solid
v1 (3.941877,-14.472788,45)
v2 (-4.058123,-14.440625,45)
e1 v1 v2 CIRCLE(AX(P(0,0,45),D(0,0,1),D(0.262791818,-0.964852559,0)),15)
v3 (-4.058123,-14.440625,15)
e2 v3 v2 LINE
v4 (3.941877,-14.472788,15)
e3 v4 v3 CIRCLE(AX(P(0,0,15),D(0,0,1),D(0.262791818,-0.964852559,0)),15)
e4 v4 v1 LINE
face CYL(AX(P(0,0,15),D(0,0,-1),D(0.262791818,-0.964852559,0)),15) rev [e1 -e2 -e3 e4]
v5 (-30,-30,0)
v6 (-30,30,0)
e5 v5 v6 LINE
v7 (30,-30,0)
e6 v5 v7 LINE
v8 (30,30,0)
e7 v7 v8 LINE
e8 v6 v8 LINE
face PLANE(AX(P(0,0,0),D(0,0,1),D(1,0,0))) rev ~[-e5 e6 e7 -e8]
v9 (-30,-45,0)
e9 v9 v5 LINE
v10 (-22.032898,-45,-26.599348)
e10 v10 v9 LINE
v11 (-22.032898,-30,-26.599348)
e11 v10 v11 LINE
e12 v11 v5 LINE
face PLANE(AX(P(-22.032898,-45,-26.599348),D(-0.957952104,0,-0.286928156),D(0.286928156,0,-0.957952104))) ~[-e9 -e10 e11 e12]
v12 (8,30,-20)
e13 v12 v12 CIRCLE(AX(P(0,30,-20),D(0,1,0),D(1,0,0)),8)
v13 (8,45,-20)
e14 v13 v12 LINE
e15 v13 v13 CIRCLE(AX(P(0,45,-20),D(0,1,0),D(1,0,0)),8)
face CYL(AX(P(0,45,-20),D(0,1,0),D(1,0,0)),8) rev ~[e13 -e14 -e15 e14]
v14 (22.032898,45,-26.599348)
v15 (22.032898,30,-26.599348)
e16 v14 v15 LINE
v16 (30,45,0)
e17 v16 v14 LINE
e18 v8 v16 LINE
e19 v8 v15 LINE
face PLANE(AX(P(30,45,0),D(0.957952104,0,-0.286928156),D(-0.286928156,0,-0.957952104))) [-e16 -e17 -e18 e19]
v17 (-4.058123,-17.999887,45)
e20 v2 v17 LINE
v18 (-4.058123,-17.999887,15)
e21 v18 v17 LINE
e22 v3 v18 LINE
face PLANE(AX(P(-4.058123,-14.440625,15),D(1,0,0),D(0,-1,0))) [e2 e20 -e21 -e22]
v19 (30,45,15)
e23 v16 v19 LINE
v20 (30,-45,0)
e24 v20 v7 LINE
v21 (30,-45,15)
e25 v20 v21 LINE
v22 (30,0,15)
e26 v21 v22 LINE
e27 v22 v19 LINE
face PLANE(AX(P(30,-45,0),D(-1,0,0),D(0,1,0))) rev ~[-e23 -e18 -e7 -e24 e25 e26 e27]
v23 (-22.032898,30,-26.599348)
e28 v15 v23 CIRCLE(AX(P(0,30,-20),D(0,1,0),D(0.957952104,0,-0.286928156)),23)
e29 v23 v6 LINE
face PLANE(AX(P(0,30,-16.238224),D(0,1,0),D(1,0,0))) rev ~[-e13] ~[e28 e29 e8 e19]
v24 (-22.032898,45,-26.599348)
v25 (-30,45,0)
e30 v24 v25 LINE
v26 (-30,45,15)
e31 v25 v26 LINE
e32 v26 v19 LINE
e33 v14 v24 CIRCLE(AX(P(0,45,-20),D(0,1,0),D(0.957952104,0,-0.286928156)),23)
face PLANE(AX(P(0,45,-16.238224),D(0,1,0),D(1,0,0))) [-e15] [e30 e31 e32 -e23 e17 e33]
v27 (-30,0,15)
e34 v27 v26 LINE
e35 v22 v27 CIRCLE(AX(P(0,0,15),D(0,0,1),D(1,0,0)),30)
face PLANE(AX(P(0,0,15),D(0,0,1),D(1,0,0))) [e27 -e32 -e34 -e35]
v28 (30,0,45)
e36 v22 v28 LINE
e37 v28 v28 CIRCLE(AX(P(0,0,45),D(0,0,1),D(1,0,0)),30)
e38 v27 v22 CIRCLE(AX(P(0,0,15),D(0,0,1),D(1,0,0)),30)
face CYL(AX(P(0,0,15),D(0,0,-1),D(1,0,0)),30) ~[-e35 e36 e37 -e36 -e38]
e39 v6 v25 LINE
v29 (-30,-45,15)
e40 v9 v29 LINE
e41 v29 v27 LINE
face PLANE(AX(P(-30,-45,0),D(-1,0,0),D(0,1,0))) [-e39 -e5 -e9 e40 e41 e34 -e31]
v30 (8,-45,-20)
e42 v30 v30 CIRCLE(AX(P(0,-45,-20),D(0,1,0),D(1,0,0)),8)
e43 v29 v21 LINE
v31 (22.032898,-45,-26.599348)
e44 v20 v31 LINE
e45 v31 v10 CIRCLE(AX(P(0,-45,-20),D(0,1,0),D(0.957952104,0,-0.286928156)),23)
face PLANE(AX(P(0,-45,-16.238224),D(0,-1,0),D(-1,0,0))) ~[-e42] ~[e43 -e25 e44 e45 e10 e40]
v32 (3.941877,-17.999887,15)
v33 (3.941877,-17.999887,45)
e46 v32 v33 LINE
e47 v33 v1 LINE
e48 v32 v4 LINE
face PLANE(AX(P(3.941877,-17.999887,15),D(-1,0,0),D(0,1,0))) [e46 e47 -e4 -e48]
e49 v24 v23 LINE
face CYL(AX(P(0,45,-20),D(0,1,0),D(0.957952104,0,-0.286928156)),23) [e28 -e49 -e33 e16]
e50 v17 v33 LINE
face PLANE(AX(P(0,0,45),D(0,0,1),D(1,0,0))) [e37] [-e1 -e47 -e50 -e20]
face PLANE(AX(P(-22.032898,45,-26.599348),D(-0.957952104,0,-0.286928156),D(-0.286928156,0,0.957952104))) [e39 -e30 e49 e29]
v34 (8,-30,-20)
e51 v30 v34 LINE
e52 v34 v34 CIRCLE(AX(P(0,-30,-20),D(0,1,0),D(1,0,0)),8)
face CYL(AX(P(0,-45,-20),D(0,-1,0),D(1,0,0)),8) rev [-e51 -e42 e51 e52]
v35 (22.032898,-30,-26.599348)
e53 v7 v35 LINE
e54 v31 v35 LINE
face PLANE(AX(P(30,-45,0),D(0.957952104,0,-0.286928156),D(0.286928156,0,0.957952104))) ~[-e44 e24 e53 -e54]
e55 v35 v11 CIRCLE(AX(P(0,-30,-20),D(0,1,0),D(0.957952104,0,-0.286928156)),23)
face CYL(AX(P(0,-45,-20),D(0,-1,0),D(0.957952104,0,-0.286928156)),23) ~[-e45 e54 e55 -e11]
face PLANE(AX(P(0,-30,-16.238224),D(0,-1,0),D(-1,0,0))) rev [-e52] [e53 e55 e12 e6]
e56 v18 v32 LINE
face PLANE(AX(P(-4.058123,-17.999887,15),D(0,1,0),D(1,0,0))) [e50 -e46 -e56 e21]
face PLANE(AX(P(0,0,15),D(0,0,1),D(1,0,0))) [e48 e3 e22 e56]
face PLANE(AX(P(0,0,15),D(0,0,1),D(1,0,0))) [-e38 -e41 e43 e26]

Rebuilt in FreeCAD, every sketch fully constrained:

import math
import FreeCAD as App
import Part
import Sketcher
from FreeCAD import Vector
Q = App.Units.Quantity


def add_polygon(sketch, points):
    """Adds a closed chain of lines whose ends are joined by coincident constraints."""
    first, n = sketch.GeometryCount, len(points)
    for a, b in zip(points, points[1:] + points[:1]):
        sketch.addGeometry(Part.LineSegment(App.Vector(*a, 0), App.Vector(*b, 0)), False)
    for i in range(n):
        sketch.addConstraint(Sketcher.Constraint("Coincident", first + i, 2, first + (i + 1) % n, 1))

doc = App.newDocument("Part")
body = doc.addObject("PartDesign::Body", "Body")

sketch1 = doc.addObject("Sketcher::SketchObject", "Sketch")
body.addObject(sketch1)
sketch1.AttachmentSupport = (doc.XY_Plane, [""])
sketch1.MapMode = "FlatFace"
add_polygon(sketch1, [(-30, 45), (-30, -45), (30, -45), (30, 45)])
sketch1.addConstraint([
    Sketcher.Constraint("Vertical", 0),
    Sketcher.Constraint("Horizontal", 1),
    Sketcher.Constraint("Vertical", 2),
    Sketcher.Constraint("Horizontal", 3),
    Sketcher.Constraint("Symmetric", 0, 2, 2, 2, -1, 1),
    Sketcher.Constraint("DistanceX", 1, 1, 1, 2, Q("60 mm")),
    Sketcher.Constraint("DistanceY", 0, 2, 0, 1, Q("90 mm")),
])
pad1 = doc.addObject("PartDesign::Pad", "Pad")
body.addObject(pad1)
pad1.Profile = sketch1
pad1.Length = 15

sketch2 = doc.addObject("Sketcher::SketchObject", "Sketch001")
body.addObject(sketch2)
sketch2.AttachmentSupport = (doc.XY_Plane, [""])
sketch2.MapMode = "FlatFace"
sketch2.AttachmentOffset = App.Placement(Vector(0, 0, 15), App.Rotation())
sketch2.addGeometry([
    Part.Circle(Vector(0, 0, 0), Vector(0, 0, 1), 30),
    Part.LineSegment(Vector(-4.058123, -17.999887, 0), Vector(-4.058123, -14.440625, 0)),
    Part.ArcOfCircle(Part.Circle(Vector(0, 0, 0), Vector(0, 0, 1), 15), math.radians(-74.764217), math.radians(254.303507)),
    Part.LineSegment(Vector(3.941877, -14.472788, 0), Vector(3.941877, -17.999887, 0)),
    Part.LineSegment(Vector(3.941877, -17.999887, 0), Vector(-4.058123, -17.999887, 0)),
], False)
sketch2.addConstraint([
    Sketcher.Constraint("Coincident", 1, 2, 2, 2),
    Sketcher.Constraint("Coincident", 2, 1, 3, 1),
    Sketcher.Constraint("Coincident", 3, 2, 4, 1),
    Sketcher.Constraint("Coincident", 4, 2, 1, 1),
    Sketcher.Constraint("Vertical", 1),
    Sketcher.Constraint("Vertical", 3),
    Sketcher.Constraint("Horizontal", 4),
    Sketcher.Constraint("Coincident", 0, 3, -1, 1),
    Sketcher.Constraint("Coincident", 2, 3, -1, 1),
    Sketcher.Constraint("Diameter", 0, Q("60 mm")),
    Sketcher.Constraint("Radius", 2, Q("15 mm")),
    Sketcher.Constraint("DistanceX", 4, 2, 4, 1, Q("8 mm")),
    Sketcher.Constraint("DistanceY", 3, 2, 3, 1, Q("3.527099 mm")),
    Sketcher.Constraint("DistanceY", 1, 1, 1, 2, Q("3.559263 mm")),
])
pad2 = doc.addObject("PartDesign::Pad", "Pad001")
body.addObject(pad2)
pad2.Profile = sketch2
pad2.Length = 30

sketch3 = doc.addObject("Sketcher::SketchObject", "Sketch002")
body.addObject(sketch3)
sketch3.AttachmentSupport = (doc.XZ_Plane, [""])
sketch3.MapMode = "FlatFace"
sketch3.AttachmentOffset = App.Placement(Vector(0, 0, -45), App.Rotation())
sketch3.addGeometry([
    Part.LineSegment(Vector(-30, 0, 0), Vector(30, 0, 0)),
    Part.LineSegment(Vector(30, 0, 0), Vector(22.032898, -26.599348, 0)),
    Part.ArcOfCircle(Part.Circle(Vector(0, -20, 0), Vector(0, 0, 1), 23), math.radians(-163.325862), math.radians(-16.674138)),
    Part.LineSegment(Vector(-22.032898, -26.599348, 0), Vector(-30, 0, 0)),
    Part.Circle(Vector(0, -20, 0), Vector(0, 0, 1), 8),
], False)
sketch3.addConstraint([
    Sketcher.Constraint("Coincident", 0, 2, 1, 1),
    Sketcher.Constraint("Tangent", 1, 2, 2, 2),
    Sketcher.Constraint("Tangent", 2, 1, 3, 1),
    Sketcher.Constraint("Coincident", 3, 2, 0, 1),
    Sketcher.Constraint("Horizontal", 0),
    Sketcher.Constraint("Coincident", 4, 3, 2, 3),
    Sketcher.Constraint("Symmetric", 0, 2, 3, 2, -1, 1),
    Sketcher.Constraint("PointOnObject", 2, 3, -2),
    Sketcher.Constraint("Diameter", 4, Q("16 mm")),
    Sketcher.Constraint("Radius", 2, Q("23 mm")),
    Sketcher.Constraint("DistanceX", 0, 1, 0, 2, Q("60 mm")),
    Sketcher.Constraint("DistanceY", 2, 3, -1, 1, Q("20 mm")),
])
pad3 = doc.addObject("PartDesign::Pad", "Pad002")
body.addObject(pad3)
pad3.Profile = sketch3
pad3.Length = 15
doc.recompute()

mirrored = doc.addObject("PartDesign::Mirrored", "Mirrored")
body.addObject(mirrored)
mirrored.Originals = [pad3]
mirrored.MirrorPlane = (doc.XZ_Plane, [""])
body.Tip = mirrored

doc.recompute()
